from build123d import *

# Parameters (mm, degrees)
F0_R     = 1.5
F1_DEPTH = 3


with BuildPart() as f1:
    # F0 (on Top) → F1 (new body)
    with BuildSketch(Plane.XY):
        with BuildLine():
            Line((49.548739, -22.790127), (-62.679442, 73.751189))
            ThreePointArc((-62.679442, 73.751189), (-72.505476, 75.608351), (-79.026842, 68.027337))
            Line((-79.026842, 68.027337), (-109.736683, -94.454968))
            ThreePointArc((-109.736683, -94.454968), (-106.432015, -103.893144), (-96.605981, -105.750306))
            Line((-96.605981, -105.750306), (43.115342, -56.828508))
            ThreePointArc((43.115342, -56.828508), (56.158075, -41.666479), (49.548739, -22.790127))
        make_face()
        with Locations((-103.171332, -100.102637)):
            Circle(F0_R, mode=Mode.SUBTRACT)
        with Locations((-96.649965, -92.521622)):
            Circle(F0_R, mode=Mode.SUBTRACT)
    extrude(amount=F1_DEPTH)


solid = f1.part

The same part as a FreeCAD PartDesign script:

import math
import FreeCAD as App
import Part
import Sketcher
from FreeCAD import Vector
Q = App.Units.Quantity

doc = App.newDocument("Part")
params = doc.addObject("Spreadsheet::Sheet", "Params")
for row, (alias, value) in enumerate([
    ("sketch1_diameter", "3 mm"),
    ("sketch1_diameter2", "3 mm"),
    ("sketch1_radius", "9.999999 mm"),
    ("sketch1_radius2", "10 mm"),
    ("sketch1_radius3", "20 mm"),
    ("pad1_length", "3 mm"),
], start=1):
    params.set(f"A{row}", alias)
    params.set(f"B{row}", "=" + value)
    params.setAlias(f"B{row}", alias)

body = doc.addObject("PartDesign::Body", "Body")

# Sketch on XY plane
sketch1 = doc.addObject("Sketcher::SketchObject", "Sketch")
body.addObject(sketch1)
sketch1.AttachmentSupport = (doc.XY_Plane, [""])
sketch1.MapMode = "FlatFace"
sketch1.addGeometry(Part.LineSegment(Vector(49.548739, -22.790127, 0), Vector(-62.679442, 73.751189, 0)), False)
sketch1.addGeometry(Part.ArcOfCircle(Part.Circle(Vector(-69.200808, 66.170175, 0), Vector(0, 0, 1), 9.999999), math.radians(49.297107), math.radians(169.297111)), False)
sketch1.addGeometry(Part.LineSegment(Vector(-79.026842, 68.027337, 0), Vector(-109.736683, -94.454968, 0)), False)
sketch1.addGeometry(Part.ArcOfCircle(Part.Circle(Vector(-99.910648, -96.312129, 0), Vector(0, 0, 1), 10), math.radians(169.297112), math.radians(289.297107)), False)
sketch1.addGeometry(Part.LineSegment(Vector(-96.605981, -105.750306, 0), Vector(43.115342, -56.828508, 0)), False)
sketch1.addGeometry(Part.ArcOfCircle(Part.Circle(Vector(36.506007, -37.952156, 0), Vector(0, 0, 1), 20), math.radians(-70.702891), math.radians(49.297111)), False)
sketch1.addGeometry(Part.Circle(Vector(-103.171332, -100.102637, 0), Vector(0, 0, 1), 1.5), False)
sketch1.addGeometry(Part.Circle(Vector(-96.649965, -92.521622, 0), Vector(0, 0, 1), 1.5), False)
sketch1.addConstraint(Sketcher.Constraint("Coincident", 0, 2, 1, 1))
sketch1.addConstraint(Sketcher.Constraint("Coincident", 1, 2, 2, 1))
sketch1.addConstraint(Sketcher.Constraint("Coincident", 2, 2, 3, 1))
sketch1.addConstraint(Sketcher.Constraint("Coincident", 3, 2, 4, 1))
sketch1.addConstraint(Sketcher.Constraint("Coincident", 4, 2, 5, 1))
sketch1.addConstraint(Sketcher.Constraint("Coincident", 5, 2, 0, 1))
sketch1.addConstraint(Sketcher.Constraint("Diameter", 6, Q("3 mm")))
sketch1.addConstraint(Sketcher.Constraint("Diameter", 7, Q("3 mm")))
sketch1.addConstraint(Sketcher.Constraint("Radius", 1, Q("9.999999 mm")))
sketch1.addConstraint(Sketcher.Constraint("Radius", 3, Q("10 mm")))
sketch1.addConstraint(Sketcher.Constraint("Radius", 5, Q("20 mm")))
sketch1.addConstraint(Sketcher.Constraint("DistanceX", 1, 2, 0, 2, Q("16.3474 mm")))
sketch1.addConstraint(Sketcher.Constraint("DistanceY", 3, 2, 4, 2, Q("48.921798 mm")))
sketch1.addConstraint(Sketcher.Constraint("DistanceX", 1, 3, -1, 1, Q("69.200808 mm")))
sketch1.addConstraint(Sketcher.Constraint("DistanceX", 3, 3, -1, 1, Q("99.910648 mm")))
sketch1.addConstraint(Sketcher.Constraint("DistanceY", 3, 3, -1, 1, Q("96.312129 mm")))
sketch1.addConstraint(Sketcher.Constraint("DistanceY", 7, 3, -1, 1, Q("92.521622 mm")))
sketch1.addConstraint(Sketcher.Constraint("DistanceY", -1, 1, 0, 2, Q("73.751189 mm")))
sketch1.addConstraint(Sketcher.Constraint("DistanceX", 1, 2, -1, 1, Q("79.026842 mm")))
sketch1.addConstraint(Sketcher.Constraint("DistanceX", 3, 2, -1, 1, Q("96.605981 mm")))
sketch1.addConstraint(Sketcher.Constraint("DistanceX", -1, 1, 4, 2, Q("43.115342 mm")))
sketch1.addConstraint(Sketcher.Constraint("DistanceX", -1, 1, 5, 2, Q("49.548739 mm")))
sketch1.addConstraint(Sketcher.Constraint("DistanceY", 5, 3, 1, 3, Q("104.122331 mm")))
sketch1.addConstraint(Sketcher.Constraint("DistanceX", 6, 3, 5, 3, Q("139.677339 mm")))
sketch1.addConstraint(Sketcher.Constraint("DistanceY", 6, 3, 5, 3, Q("62.150481 mm")))
sketch1.addConstraint(Sketcher.Constraint("DistanceX", 7, 3, 5, 3, Q("133.155972 mm")))
sketch1.addConstraint(Sketcher.Constraint("DistanceX", 2, 2, 6, 3, Q("6.565351 mm")))
sketch1.setExpression("Constraints[6]", "Params.sketch1_diameter")
sketch1.setExpression("Constraints[7]", "Params.sketch1_diameter2")
sketch1.setExpression("Constraints[8]", "Params.sketch1_radius")
sketch1.setExpression("Constraints[9]", "Params.sketch1_radius2")
sketch1.setExpression("Constraints[10]", "Params.sketch1_radius3")
pad1 = doc.addObject("PartDesign::Pad", "Pad")
body.addObject(pad1)
pad1.Profile = sketch1
pad1.setExpression("Length", "Params.pad1_length")

doc.recompute()
